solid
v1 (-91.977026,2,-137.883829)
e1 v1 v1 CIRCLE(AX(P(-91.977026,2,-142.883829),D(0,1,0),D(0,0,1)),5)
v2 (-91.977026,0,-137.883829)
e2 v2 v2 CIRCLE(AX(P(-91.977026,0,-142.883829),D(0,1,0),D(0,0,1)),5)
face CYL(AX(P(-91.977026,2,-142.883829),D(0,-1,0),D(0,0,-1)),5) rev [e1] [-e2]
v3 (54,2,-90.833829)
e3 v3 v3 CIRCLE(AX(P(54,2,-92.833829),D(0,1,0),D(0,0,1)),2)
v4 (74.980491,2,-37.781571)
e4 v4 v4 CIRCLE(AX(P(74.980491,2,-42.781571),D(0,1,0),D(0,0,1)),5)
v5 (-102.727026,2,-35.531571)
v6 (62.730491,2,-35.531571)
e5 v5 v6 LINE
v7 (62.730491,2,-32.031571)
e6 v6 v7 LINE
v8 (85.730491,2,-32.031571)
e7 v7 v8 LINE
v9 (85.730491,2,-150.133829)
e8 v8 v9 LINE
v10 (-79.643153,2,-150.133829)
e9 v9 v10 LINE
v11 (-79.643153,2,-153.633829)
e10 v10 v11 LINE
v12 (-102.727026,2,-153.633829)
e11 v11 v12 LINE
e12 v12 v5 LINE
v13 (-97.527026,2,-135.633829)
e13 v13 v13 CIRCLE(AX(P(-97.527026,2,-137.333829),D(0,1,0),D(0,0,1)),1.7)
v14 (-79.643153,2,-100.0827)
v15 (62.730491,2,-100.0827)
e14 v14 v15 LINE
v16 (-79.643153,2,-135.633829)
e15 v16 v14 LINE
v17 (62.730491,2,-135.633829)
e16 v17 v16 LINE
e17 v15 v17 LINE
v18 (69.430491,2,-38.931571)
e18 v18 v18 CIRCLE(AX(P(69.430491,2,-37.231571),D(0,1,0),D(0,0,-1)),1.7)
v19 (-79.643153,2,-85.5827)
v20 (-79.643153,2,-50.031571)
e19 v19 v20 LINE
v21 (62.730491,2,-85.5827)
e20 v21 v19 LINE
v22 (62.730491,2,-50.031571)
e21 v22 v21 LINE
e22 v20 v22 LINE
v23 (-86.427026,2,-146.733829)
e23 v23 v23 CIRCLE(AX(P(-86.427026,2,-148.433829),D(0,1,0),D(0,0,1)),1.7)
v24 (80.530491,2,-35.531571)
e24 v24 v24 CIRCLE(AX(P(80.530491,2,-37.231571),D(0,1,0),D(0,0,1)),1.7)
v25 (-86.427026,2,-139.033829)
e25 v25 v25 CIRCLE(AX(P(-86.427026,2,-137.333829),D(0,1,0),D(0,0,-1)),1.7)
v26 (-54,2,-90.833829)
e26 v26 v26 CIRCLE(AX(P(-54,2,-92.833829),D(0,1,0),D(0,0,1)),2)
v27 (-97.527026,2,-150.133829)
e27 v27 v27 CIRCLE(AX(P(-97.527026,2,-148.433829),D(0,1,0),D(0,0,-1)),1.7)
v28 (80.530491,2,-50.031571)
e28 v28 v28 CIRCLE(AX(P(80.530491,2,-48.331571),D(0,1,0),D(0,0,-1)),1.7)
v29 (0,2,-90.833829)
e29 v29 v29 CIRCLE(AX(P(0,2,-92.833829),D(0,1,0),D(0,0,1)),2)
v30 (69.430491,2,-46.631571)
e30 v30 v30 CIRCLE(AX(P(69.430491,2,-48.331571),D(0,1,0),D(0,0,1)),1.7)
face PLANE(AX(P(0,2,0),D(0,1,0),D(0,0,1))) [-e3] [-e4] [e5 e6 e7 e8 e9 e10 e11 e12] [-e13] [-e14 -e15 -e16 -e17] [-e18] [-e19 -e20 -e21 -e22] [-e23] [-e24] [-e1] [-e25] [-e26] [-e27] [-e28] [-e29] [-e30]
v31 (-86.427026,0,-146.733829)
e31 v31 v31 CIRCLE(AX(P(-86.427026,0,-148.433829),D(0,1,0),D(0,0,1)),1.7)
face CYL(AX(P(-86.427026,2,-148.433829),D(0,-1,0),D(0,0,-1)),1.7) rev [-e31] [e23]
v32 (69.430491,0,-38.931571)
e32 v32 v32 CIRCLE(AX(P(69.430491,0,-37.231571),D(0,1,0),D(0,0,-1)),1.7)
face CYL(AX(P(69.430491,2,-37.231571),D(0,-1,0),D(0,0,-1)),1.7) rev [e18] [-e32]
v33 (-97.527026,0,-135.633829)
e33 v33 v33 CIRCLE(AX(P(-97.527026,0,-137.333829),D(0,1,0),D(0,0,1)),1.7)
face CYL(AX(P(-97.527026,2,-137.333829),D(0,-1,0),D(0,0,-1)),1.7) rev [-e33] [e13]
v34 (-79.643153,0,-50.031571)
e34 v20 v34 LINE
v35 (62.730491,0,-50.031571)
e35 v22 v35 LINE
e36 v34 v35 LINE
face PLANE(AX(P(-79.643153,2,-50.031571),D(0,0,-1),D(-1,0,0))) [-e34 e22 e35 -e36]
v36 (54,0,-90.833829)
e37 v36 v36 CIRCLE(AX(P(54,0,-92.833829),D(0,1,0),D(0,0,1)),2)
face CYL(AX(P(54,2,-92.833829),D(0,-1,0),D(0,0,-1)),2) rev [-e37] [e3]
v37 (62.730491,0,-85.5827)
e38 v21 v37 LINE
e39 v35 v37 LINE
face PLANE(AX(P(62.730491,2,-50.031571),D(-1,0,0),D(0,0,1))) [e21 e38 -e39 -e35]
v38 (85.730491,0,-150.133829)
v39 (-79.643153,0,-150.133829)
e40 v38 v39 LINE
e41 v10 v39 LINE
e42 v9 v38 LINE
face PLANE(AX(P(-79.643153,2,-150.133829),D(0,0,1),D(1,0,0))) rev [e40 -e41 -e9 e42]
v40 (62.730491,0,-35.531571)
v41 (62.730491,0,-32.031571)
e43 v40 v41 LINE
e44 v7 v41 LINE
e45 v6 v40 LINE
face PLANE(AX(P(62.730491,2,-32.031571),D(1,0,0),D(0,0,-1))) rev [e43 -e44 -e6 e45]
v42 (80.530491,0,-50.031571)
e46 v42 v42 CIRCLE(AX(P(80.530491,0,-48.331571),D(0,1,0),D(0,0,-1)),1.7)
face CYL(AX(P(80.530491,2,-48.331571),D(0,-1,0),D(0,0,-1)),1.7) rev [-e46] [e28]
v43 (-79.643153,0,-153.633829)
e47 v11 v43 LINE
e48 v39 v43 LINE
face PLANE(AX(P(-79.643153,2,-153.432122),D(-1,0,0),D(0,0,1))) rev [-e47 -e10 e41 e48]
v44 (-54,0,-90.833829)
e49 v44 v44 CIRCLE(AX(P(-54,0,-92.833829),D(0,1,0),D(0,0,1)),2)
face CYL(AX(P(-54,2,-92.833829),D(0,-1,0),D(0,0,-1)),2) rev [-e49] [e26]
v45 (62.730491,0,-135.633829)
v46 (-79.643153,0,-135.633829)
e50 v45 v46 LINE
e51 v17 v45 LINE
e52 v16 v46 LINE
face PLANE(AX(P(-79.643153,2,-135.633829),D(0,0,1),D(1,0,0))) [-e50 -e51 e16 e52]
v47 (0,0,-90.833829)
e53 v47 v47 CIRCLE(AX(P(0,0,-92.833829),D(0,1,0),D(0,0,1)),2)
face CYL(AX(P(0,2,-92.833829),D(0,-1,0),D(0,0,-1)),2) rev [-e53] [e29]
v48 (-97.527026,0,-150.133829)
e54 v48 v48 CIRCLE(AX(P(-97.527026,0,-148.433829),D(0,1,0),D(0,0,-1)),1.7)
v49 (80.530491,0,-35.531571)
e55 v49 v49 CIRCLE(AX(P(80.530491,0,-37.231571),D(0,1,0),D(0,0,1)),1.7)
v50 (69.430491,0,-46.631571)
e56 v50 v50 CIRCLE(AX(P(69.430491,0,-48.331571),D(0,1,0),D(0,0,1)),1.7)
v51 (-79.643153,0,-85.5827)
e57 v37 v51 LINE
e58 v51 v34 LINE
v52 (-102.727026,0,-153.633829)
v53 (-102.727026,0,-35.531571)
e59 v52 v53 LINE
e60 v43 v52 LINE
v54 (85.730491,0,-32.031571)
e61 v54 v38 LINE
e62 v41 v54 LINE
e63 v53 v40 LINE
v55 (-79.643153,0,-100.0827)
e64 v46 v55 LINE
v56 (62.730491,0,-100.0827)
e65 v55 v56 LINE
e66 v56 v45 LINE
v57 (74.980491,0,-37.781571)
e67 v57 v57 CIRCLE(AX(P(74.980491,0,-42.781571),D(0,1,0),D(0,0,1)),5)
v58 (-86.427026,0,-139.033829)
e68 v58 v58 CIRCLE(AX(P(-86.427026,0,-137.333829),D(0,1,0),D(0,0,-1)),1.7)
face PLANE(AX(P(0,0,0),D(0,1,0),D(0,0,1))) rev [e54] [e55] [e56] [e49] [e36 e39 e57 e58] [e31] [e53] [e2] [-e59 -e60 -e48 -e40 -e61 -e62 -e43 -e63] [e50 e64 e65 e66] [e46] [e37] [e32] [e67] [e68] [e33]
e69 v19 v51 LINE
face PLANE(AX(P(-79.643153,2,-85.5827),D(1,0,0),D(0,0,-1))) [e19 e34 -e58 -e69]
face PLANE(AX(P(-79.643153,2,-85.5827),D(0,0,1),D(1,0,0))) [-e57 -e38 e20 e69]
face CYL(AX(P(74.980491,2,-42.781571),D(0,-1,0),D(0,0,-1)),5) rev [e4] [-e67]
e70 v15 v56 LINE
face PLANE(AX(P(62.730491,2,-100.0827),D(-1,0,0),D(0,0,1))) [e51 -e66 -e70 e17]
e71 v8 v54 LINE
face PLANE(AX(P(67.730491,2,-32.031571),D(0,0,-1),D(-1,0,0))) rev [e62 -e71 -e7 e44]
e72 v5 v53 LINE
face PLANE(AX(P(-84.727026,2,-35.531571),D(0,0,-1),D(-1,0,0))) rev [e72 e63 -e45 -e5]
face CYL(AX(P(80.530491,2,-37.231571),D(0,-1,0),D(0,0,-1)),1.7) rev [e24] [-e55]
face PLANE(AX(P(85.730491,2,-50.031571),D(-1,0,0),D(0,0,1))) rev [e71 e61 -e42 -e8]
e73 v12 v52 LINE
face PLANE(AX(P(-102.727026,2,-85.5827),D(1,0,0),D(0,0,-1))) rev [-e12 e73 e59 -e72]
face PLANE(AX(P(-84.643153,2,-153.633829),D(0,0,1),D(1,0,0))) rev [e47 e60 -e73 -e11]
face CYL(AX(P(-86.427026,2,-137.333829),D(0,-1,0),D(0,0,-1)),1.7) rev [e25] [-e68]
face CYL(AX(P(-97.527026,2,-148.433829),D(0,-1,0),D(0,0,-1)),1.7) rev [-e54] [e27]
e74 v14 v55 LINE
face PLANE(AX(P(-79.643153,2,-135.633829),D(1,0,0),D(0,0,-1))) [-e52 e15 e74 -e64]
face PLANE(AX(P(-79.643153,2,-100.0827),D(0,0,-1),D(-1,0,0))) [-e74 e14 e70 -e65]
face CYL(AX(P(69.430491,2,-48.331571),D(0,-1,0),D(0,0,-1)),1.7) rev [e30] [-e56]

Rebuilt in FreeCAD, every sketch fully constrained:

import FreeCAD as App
import Part
import Sketcher


def add_polygon(sketch, points):
    """Adds a closed chain of lines whose ends are joined by coincident constraints."""
    first, n = sketch.GeometryCount, len(points)
    for a, b in zip(points, points[1:] + points[:1]):
        sketch.addGeometry(Part.LineSegment(App.Vector(*a, 0), App.Vector(*b, 0)), False)
    for i in range(n):
        sketch.addConstraint(Sketcher.Constraint("Coincident", first + i, 2, first + (i + 1) % n, 1))

doc = App.newDocument("Part")
body = doc.addObject("PartDesign::Body", "Body")

# Sketch on XZ plane
sketch1 = body.newObject("Sketcher::SketchObject", "Sketch")
sketch1.AttachmentSupport = (doc.getObject("XZ_Plane"), [""])
sketch1.MapMode = "FlatFace"
add_polygon(sketch1, [(85.7, -150.1), (-79.6, -150.1), (-79.6, -153.6), (-102.7, -153.6), (-102.7, -35.5), (62.7, -35.5), (62.7, -32), (85.7, -32)])  # lines 0-7
sketch1.addGeometry(Part.Circle(App.Vector(80.5, -37.2, 0), App.Vector(0, 0, 1), 1.7), False)  # 8
sketch1.addGeometry(Part.Circle(App.Vector(69.4, -37.2, 0), App.Vector(0, 0, 1), 1.7), False)  # 9
sketch1.addGeometry(Part.Circle(App.Vector(75, -42.8, 0), App.Vector(0, 0, 1), 5), False)  # 10
sketch1.addGeometry(Part.Circle(App.Vector(80.5, -48.3, 0), App.Vector(0, 0, 1), 1.7), False)  # 11
sketch1.addGeometry(Part.Circle(App.Vector(69.4, -48.3, 0), App.Vector(0, 0, 1), 1.7), False)  # 12
add_polygon(sketch1, [(-79.6, -50), (-79.6, -85.6), (62.7, -85.6), (62.7, -50)])  # lines 13-16
sketch1.addGeometry(Part.Circle(App.Vector(54, -92.8, 0), App.Vector(0, 0, 1), 2), False)  # 17
sketch1.addGeometry(Part.Circle(App.Vector(0, -92.8, 0), App.Vector(0, 0, 1), 2), False)  # 18
add_polygon(sketch1, [(-79.6, -100.1), (-79.6, -135.6), (62.7, -135.6), (62.7, -100.1)])  # lines 19-22
sketch1.addGeometry(Part.Circle(App.Vector(-54, -92.8, 0), App.Vector(0, 0, 1), 2), False)  # 23
sketch1.addGeometry(Part.Circle(App.Vector(-86.4, -137.3, 0), App.Vector(0, 0, 1), 1.7), False)  # 24
sketch1.addGeometry(Part.Circle(App.Vector(-97.5, -137.3, 0), App.Vector(0, 0, 1), 1.7), False)  # 25
sketch1.addGeometry(Part.Circle(App.Vector(-92, -142.9, 0), App.Vector(0, 0, 1), 5), False)  # 26
sketch1.addGeometry(Part.Circle(App.Vector(-86.4, -148.4, 0), App.Vector(0, 0, 1), 1.7), False)  # 27
sketch1.addGeometry(Part.Circle(App.Vector(-97.5, -148.4, 0), App.Vector(0, 0, 1), 1.7), False)  # 28
sketch1.addConstraint(Sketcher.Constraint("Horizontal", 0))
sketch1.addConstraint(Sketcher.Constraint("Vertical", 1))
sketch1.addConstraint(Sketcher.Constraint("Horizontal", 2))
sketch1.addConstraint(Sketcher.Constraint("Vertical", 3))
sketch1.addConstraint(Sketcher.Constraint("Horizontal", 4))
sketch1.addConstraint(Sketcher.Constraint("Vertical", 5))
sketch1.addConstraint(Sketcher.Constraint("Horizontal", 6))
sketch1.addConstraint(Sketcher.Constraint("Vertical", 7))
sketch1.addConstraint(Sketcher.Constraint("Vertical", 13))
sketch1.addConstraint(Sketcher.Constraint("Horizontal", 14))
sketch1.addConstraint(Sketcher.Constraint("Vertical", 15))
sketch1.addConstraint(Sketcher.Constraint("Horizontal", 16))
sketch1.addConstraint(Sketcher.Constraint("Vertical", 19))
sketch1.addConstraint(Sketcher.Constraint("Horizontal", 20))
sketch1.addConstraint(Sketcher.Constraint("Vertical", 21))
sketch1.addConstraint(Sketcher.Constraint("Horizontal", 22))
sketch1.addConstraint(Sketcher.Constraint("Equal", 8, 9))
sketch1.addConstraint(Sketcher.Constraint("Equal", 9, 11))
sketch1.addConstraint(Sketcher.Constraint("Equal", 11, 12))
sketch1.addConstraint(Sketcher.Constraint("Equal", 17, 18))
sketch1.addConstraint(Sketcher.Constraint("Equal", 18, 23))
sketch1.addConstraint(Sketcher.Constraint("Equal", 12, 24))
sketch1.addConstraint(Sketcher.Constraint("Equal", 24, 25))
sketch1.addConstraint(Sketcher.Constraint("Equal", 10, 26))
sketch1.addConstraint(Sketcher.Constraint("Equal", 25, 27))
sketch1.addConstraint(Sketcher.Constraint("Equal", 27, 28))
sketch1.addConstraint(Sketcher.Constraint("Symmetric", 17, 3, 23, 3, -2))
sketch1.addConstraint(Sketcher.Constraint("PointOnObject", 18, 3, -2))
sketch1.addConstraint(Sketcher.Constraint("Horizontal", 8, 3, 9, 3))
sketch1.addConstraint(Sketcher.Constraint("Horizontal", 11, 3, 12, 3))
sketch1.addConstraint(Sketcher.Constraint("Horizontal", 17, 3, 18, 3))
sketch1.addConstraint(Sketcher.Constraint("Horizontal", 24, 3, 25, 3))
sketch1.addConstraint(Sketcher.Constraint("Horizontal", 27, 3, 28, 3))
sketch1.addConstraint(Sketcher.Constraint("Vertical", 8, 3, 11, 3))
sketch1.addConstraint(Sketcher.Constraint("Vertical", 9, 3, 12, 3))
sketch1.addConstraint(Sketcher.Constraint("Vertical", 24, 3, 27, 3))
sketch1.addConstraint(Sketcher.Constraint("Vertical", 25, 3, 28, 3))
sketch1.addConstraint(Sketcher.Constraint("Vertical", 1, 2, 13, 2))
sketch1.addConstraint(Sketcher.Constraint("Vertical", 5, 2, 14, 2))
sketch1.addConstraint(Sketcher.Constraint("Vertical", 16, 2, 19, 2))
sketch1.addConstraint(Sketcher.Constraint("Vertical", 15, 2, 20, 2))
sketch1.addConstraint(Sketcher.Constraint("Equal", 1, 5))
sketch1.addConstraint(Sketcher.Constraint("Equal", 15, 19))
sketch1.addConstraint(Sketcher.Constraint("Diameter", 10, 10.0))
sketch1.addConstraint(Sketcher.Constraint("Diameter", 17, 4.0))
sketch1.addConstraint(Sketcher.Constraint("Diameter", 8, 3.4))
sketch1.addConstraint(Sketcher.Constraint("DistanceX", 6, 1, 6, 2, 23.0))
sketch1.addConstraint(Sketcher.Constraint("DistanceY", 1, 2, 1, 1, 3.5))
sketch1.addConstraint(Sketcher.Constraint("DistanceX", -1, 1, 17, 3, 54.0))
sketch1.addConstraint(Sketcher.Constraint("DistanceX", 9, 3, 8, 3, 11.1))
sketch1.addConstraint(Sketcher.Constraint("DistanceY", 11, 3, 8, 3, 11.1))
sketch1.addConstraint(Sketcher.Constraint("DistanceY", 24, 3, 23, 3, 44.5))
sketch1.addConstraint(Sketcher.Constraint("DistanceX", 25, 3, 24, 3, 11.1))
sketch1.addConstraint(Sketcher.Constraint("DistanceY", 27, 3, 24, 3, 11.1))
sketch1.addConstraint(Sketcher.Constraint("DistanceY", 0, 2, 27, 3, 1.7))
sketch1.addConstraint(Sketcher.Constraint("DistanceX", 2, 2, 28, 3, 5.2))
sketch1.addConstraint(Sketcher.Constraint("DistanceX", 4, 2, 9, 3, 6.7))
sketch1.addConstraint(Sketcher.Constraint("DistanceY", 9, 3, 4, 2, 1.7))
sketch1.addConstraint(Sketcher.Constraint("DistanceY", 15, 2, 12, 3, 1.7))
sketch1.addConstraint(Sketcher.Constraint("DistanceY", 24, 3, 19, 2, 1.7))
sketch1.addConstraint(Sketcher.Constraint("DistanceY", 21, 2, 14, 2, 14.5))
sketch1.addConstraint(Sketcher.Constraint("DistanceX", 10, 3, 8, 3, 5.55))
sketch1.addConstraint(Sketcher.Constraint("DistanceY", 10, 3, 8, 3, 5.55))
sketch1.addConstraint(Sketcher.Constraint("DistanceX", 26, 3, 24, 3, 5.55))
sketch1.addConstraint(Sketcher.Constraint("DistanceY", 26, 3, 24, 3, 5.55))
sketch1.addConstraint(Sketcher.Constraint("DistanceY", 3, 1, 3, 2, 118.102259))
sketch1.addConstraint(Sketcher.Constraint("DistanceY", 13, 2, -1, 1, 85.5827))
sketch1.addConstraint(Sketcher.Constraint("DistanceX", 0, 2, 0, 1, 165.373645))
sketch1.addConstraint(Sketcher.Constraint("DistanceX", 2, 2, 2, 1, 23.083873))
sketch1.addConstraint(Sketcher.Constraint("DistanceX", -1, 1, 8, 3, 80.530491))
pad1 = body.newObject("PartDesign::Pad", "Pad")
pad1.Profile = sketch1
pad1.Length = 2
pad1.Reversed = True

doc.recompute()
